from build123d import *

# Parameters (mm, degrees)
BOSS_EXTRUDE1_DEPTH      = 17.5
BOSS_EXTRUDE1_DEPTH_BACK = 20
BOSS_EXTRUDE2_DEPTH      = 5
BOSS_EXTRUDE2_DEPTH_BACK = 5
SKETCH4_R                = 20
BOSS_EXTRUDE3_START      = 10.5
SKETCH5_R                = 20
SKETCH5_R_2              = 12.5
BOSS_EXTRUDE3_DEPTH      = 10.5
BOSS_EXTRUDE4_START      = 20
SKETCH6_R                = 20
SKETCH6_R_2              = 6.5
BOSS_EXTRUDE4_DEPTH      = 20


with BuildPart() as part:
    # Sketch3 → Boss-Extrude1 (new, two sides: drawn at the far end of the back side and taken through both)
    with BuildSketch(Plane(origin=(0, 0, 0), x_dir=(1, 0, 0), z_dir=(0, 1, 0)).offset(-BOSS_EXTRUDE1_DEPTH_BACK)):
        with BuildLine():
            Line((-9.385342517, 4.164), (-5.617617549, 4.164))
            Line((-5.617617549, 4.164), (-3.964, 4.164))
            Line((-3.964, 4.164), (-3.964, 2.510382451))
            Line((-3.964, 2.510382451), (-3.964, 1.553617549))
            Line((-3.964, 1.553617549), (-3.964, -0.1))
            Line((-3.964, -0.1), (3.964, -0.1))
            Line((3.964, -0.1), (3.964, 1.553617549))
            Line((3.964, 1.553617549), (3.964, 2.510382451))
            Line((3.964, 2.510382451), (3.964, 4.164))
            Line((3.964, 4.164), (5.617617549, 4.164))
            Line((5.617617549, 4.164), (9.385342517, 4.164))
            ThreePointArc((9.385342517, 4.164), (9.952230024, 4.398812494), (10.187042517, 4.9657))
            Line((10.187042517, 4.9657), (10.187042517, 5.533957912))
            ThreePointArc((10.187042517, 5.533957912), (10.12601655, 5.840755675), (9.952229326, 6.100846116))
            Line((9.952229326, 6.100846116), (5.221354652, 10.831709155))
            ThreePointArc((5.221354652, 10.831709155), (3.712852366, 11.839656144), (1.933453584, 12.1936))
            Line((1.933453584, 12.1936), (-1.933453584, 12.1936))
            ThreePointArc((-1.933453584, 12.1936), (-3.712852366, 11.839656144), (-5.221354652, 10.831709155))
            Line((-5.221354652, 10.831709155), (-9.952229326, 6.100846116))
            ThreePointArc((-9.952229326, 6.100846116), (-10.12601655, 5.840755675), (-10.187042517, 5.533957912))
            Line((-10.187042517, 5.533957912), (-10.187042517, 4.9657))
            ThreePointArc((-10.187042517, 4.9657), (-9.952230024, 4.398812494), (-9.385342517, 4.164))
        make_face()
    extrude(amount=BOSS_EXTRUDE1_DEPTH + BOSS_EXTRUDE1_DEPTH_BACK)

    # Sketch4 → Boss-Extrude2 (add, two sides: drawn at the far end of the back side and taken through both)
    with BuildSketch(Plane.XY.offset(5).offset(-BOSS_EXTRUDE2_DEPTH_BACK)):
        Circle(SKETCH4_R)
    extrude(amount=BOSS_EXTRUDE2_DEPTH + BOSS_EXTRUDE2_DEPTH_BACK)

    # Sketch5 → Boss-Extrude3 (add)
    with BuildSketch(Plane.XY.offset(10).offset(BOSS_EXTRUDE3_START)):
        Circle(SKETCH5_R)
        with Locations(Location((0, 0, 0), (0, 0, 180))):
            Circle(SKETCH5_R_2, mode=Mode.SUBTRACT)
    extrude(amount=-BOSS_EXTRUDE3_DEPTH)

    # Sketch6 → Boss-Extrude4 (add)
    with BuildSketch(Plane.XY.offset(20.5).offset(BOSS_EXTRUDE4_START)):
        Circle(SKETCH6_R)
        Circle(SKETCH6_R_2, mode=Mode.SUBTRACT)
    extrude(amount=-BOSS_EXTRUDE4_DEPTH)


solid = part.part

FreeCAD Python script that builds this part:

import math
import FreeCAD as App
import Part
import Sketcher

V = App.Vector
Q = App.Units.Quantity

doc = App.newDocument("Part")
body = doc.addObject("PartDesign::Body", "Body")

# Sketch on XZ plane
sketch1 = body.newObject("Sketcher::SketchObject", "Sketch")
sketch1.AttachmentSupport = (doc.getObject("XZ_Plane"), [""])
sketch1.MapMode = "FlatFace"
sketch1.addGeometry(Part.LineSegment(V(-9.4, -4.2, 0), V(-4, -4.2, 0)), False)
sketch1.addGeometry(Part.LineSegment(V(-4, -4.2, 0), V(-4, 0.1, 0)), False)
sketch1.addGeometry(Part.LineSegment(V(-4, 0.1, 0), V(4, 0.1, 0)), False)
sketch1.addGeometry(Part.LineSegment(V(4, 0.1, 0), V(4, -4.2, 0)), False)
sketch1.addGeometry(Part.LineSegment(V(4, -4.2, 0), V(9.4, -4.2, 0)), False)
sketch1.addGeometry(Part.ArcOfCircle(Part.Circle(V(9.4, -5, 0), V(0, 0, 1), 0.8), math.radians(0), math.radians(90)), False)
sketch1.addGeometry(Part.LineSegment(V(10.2, -5, 0), V(10.2, -5.5, 0)), False)
sketch1.addGeometry(Part.ArcOfCircle(Part.Circle(V(9.4, -5.5, 0), V(0, 0, 1), 0.8), math.radians(-45), math.radians(0)), False)
sketch1.addGeometry(Part.LineSegment(V(10, -6.1, 0), V(5.2, -10.8, 0)), False)
sketch1.addGeometry(Part.ArcOfCircle(Part.Circle(V(1.9, -7.5, 0), V(0, 0, 1), 4.6), math.radians(-90), math.radians(-45)), False)
sketch1.addGeometry(Part.LineSegment(V(1.9, -12.2, 0), V(-1.9, -12.2, 0)), False)
sketch1.addGeometry(Part.ArcOfCircle(Part.Circle(V(-1.9, -7.5, 0), V(0, 0, 1), 4.6), math.radians(-135), math.radians(-90)), False)
sketch1.addGeometry(Part.LineSegment(V(-5.2, -10.8, 0), V(-10, -6.1, 0)), False)
sketch1.addGeometry(Part.ArcOfCircle(Part.Circle(V(-9.4, -5.5, 0), V(0, 0, 1), 0.8), math.radians(180), math.radians(225)), False)
sketch1.addGeometry(Part.LineSegment(V(-10.2, -5.5, 0), V(-10.2, -5, 0)), False)
sketch1.addGeometry(Part.ArcOfCircle(Part.Circle(V(-9.4, -5, 0), V(0, 0, 1), 0.8), math.radians(90), math.radians(180)), False)
sketch1.addConstraint(Sketcher.Constraint("Coincident", 0, 2, 1, 1))
sketch1.addConstraint(Sketcher.Constraint("Coincident", 1, 2, 2, 1))
sketch1.addConstraint(Sketcher.Constraint("Coincident", 2, 2, 3, 1))
sketch1.addConstraint(Sketcher.Constraint("Coincident", 3, 2, 4, 1))
sketch1.addConstraint(Sketcher.Constraint("Tangent", 4, 2, 5, 2))
sketch1.addConstraint(Sketcher.Constraint("Tangent", 5, 1, 6, 1))
sketch1.addConstraint(Sketcher.Constraint("Tangent", 6, 2, 7, 2))
sketch1.addConstraint(Sketcher.Constraint("Tangent", 7, 1, 8, 1))
sketch1.addConstraint(Sketcher.Constraint("Tangent", 8, 2, 9, 2))
sketch1.addConstraint(Sketcher.Constraint("Tangent", 9, 1, 10, 1))
sketch1.addConstraint(Sketcher.Constraint("Tangent", 10, 2, 11, 2))
sketch1.addConstraint(Sketcher.Constraint("Tangent", 11, 1, 12, 1))
sketch1.addConstraint(Sketcher.Constraint("Tangent", 12, 2, 13, 2))
sketch1.addConstraint(Sketcher.Constraint("Tangent", 13, 1, 14, 1))
sketch1.addConstraint(Sketcher.Constraint("Tangent", 14, 2, 15, 2))
sketch1.addConstraint(Sketcher.Constraint("Tangent", 15, 1, 0, 1))
sketch1.addConstraint(Sketcher.Constraint("Horizontal", 0))
sketch1.addConstraint(Sketcher.Constraint("Vertical", 1))
sketch1.addConstraint(Sketcher.Constraint("Horizontal", 2))
sketch1.addConstraint(Sketcher.Constraint("Vertical", 3))
sketch1.addConstraint(Sketcher.Constraint("Horizontal", 4))
sketch1.addConstraint(Sketcher.Constraint("Vertical", 6))
sketch1.addConstraint(Sketcher.Constraint("Horizontal", 10))
sketch1.addConstraint(Sketcher.Constraint("Vertical", 14))
sketch1.addConstraint(Sketcher.Constraint("Equal", 5, 7))
sketch1.addConstraint(Sketcher.Constraint("Equal", 9, 11))
sketch1.addConstraint(Sketcher.Constraint("Equal", 7, 13))
sketch1.addConstraint(Sketcher.Constraint("Equal", 13, 15))
sketch1.addConstraint(Sketcher.Constraint("Symmetric", 7, 3, 13, 3, -2))
sketch1.addConstraint(Sketcher.Constraint("Symmetric", 0, 2, 3, 2, -2))
sketch1.addConstraint(Sketcher.Constraint("Horizontal", 8, 2, 11, 1))
sketch1.addConstraint(Sketcher.Constraint("DistanceY", -1, 1, 1, 2, Q("0.1 mm")))
sketch1.addConstraint(Sketcher.Constraint("Radius", 5, Q("0.8017 mm")))
sketch1.addConstraint(Sketcher.Constraint("Radius", 9, Q("4.6498 mm")))
sketch1.addConstraint(Sketcher.Constraint("DistanceX", 2, 1, 2, 2, Q("7.928 mm")))
sketch1.addConstraint(Sketcher.Constraint("DistanceY", 1, 1, 1, 2, Q("4.264 mm")))
sketch1.addConstraint(Sketcher.Constraint("DistanceY", 9, 3, -1, 1, Q("7.5438 mm")))
sketch1.addConstraint(Sketcher.Constraint("DistanceX", 9, 3, 8, 2, Q("3.287901 mm")))
sketch1.addConstraint(Sketcher.Constraint("Distance", 8, Q("6.690459 mm")))
sketch1.addConstraint(Sketcher.Constraint("DistanceX", 0, 1, 0, 2, Q("5.421343 mm")))
pad1 = body.newObject("PartDesign::Pad", "Pad")
pad1.Profile = sketch1
pad1.Type = "TwoLengths"
pad1.Length = 17.5
pad1.Length2 = 20
pad1.Reversed = True

# Sketch on XY plane
sketch2 = body.newObject("Sketcher::SketchObject", "Sketch001")
sketch2.AttachmentSupport = (doc.getObject("XY_Plane"), [""])
sketch2.MapMode = "FlatFace"
sketch2.AttachmentOffset = App.Placement(V(0, 0, 5), App.Rotation())
sketch2.addGeometry(Part.Circle(V(0, 0, 0), V(0, 0, 1), 20), False)
sketch2.addConstraint(Sketcher.Constraint("Coincident", 0, 3, -1, 1))
sketch2.addConstraint(Sketcher.Constraint("Diameter", 0, Q("40 mm")))
pad2 = body.newObject("PartDesign::Pad", "Pad001")
pad2.Profile = sketch2
pad2.Type = "TwoLengths"
pad2.Length = 5
pad2.Length2 = 5

# Sketch on XY plane
sketch3 = body.newObject("Sketcher::SketchObject", "Sketch002")
sketch3.AttachmentSupport = (doc.getObject("XY_Plane"), [""])
sketch3.MapMode = "FlatFace"
sketch3.AttachmentOffset = App.Placement(V(0, 0, 20.5), App.Rotation())
sketch3.addGeometry(Part.Circle(V(0, 0, 0), V(0, 0, 1), 20), False)
sketch3.addGeometry(Part.Circle(V(0, 0, 0), V(0, 0, 1), 12), False)
sketch3.addConstraint(Sketcher.Constraint("Coincident", 0, 3, -1, 1))
sketch3.addConstraint(Sketcher.Constraint("Coincident", 1, 3, -1, 1))
sketch3.addConstraint(Sketcher.Constraint("Diameter", 0, Q("40 mm")))
sketch3.addConstraint(Sketcher.Constraint("Diameter", 1, Q("25 mm")))
pad3 = body.newObject("PartDesign::Pad", "Pad002")
pad3.Profile = sketch3
pad3.Length = 10.5
pad3.Reversed = True

# Sketch on XY plane
sketch4 = body.newObject("Sketcher::SketchObject", "Sketch003")
sketch4.AttachmentSupport = (doc.getObject("XY_Plane"), [""])
sketch4.MapMode = "FlatFace"
sketch4.AttachmentOffset = App.Placement(V(0, 0, 40.5), App.Rotation())
sketch4.addGeometry(Part.Circle(V(0, 0, 0), V(0, 0, 1), 20), False)
sketch4.addGeometry(Part.Circle(V(0, 0, 0), V(0, 0, 1), 6), False)
sketch4.addConstraint(Sketcher.Constraint("Coincident", 0, 3, -1, 1))
sketch4.addConstraint(Sketcher.Constraint("Coincident", 1, 3, -1, 1))
sketch4.addConstraint(Sketcher.Constraint("Diameter", 0, Q("40 mm")))
sketch4.addConstraint(Sketcher.Constraint("Diameter", 1, Q("13 mm")))
pad4 = body.newObject("PartDesign::Pad", "Pad003")
pad4.Profile = sketch4
pad4.Length = 20
pad4.Reversed = True

doc.recompute()
